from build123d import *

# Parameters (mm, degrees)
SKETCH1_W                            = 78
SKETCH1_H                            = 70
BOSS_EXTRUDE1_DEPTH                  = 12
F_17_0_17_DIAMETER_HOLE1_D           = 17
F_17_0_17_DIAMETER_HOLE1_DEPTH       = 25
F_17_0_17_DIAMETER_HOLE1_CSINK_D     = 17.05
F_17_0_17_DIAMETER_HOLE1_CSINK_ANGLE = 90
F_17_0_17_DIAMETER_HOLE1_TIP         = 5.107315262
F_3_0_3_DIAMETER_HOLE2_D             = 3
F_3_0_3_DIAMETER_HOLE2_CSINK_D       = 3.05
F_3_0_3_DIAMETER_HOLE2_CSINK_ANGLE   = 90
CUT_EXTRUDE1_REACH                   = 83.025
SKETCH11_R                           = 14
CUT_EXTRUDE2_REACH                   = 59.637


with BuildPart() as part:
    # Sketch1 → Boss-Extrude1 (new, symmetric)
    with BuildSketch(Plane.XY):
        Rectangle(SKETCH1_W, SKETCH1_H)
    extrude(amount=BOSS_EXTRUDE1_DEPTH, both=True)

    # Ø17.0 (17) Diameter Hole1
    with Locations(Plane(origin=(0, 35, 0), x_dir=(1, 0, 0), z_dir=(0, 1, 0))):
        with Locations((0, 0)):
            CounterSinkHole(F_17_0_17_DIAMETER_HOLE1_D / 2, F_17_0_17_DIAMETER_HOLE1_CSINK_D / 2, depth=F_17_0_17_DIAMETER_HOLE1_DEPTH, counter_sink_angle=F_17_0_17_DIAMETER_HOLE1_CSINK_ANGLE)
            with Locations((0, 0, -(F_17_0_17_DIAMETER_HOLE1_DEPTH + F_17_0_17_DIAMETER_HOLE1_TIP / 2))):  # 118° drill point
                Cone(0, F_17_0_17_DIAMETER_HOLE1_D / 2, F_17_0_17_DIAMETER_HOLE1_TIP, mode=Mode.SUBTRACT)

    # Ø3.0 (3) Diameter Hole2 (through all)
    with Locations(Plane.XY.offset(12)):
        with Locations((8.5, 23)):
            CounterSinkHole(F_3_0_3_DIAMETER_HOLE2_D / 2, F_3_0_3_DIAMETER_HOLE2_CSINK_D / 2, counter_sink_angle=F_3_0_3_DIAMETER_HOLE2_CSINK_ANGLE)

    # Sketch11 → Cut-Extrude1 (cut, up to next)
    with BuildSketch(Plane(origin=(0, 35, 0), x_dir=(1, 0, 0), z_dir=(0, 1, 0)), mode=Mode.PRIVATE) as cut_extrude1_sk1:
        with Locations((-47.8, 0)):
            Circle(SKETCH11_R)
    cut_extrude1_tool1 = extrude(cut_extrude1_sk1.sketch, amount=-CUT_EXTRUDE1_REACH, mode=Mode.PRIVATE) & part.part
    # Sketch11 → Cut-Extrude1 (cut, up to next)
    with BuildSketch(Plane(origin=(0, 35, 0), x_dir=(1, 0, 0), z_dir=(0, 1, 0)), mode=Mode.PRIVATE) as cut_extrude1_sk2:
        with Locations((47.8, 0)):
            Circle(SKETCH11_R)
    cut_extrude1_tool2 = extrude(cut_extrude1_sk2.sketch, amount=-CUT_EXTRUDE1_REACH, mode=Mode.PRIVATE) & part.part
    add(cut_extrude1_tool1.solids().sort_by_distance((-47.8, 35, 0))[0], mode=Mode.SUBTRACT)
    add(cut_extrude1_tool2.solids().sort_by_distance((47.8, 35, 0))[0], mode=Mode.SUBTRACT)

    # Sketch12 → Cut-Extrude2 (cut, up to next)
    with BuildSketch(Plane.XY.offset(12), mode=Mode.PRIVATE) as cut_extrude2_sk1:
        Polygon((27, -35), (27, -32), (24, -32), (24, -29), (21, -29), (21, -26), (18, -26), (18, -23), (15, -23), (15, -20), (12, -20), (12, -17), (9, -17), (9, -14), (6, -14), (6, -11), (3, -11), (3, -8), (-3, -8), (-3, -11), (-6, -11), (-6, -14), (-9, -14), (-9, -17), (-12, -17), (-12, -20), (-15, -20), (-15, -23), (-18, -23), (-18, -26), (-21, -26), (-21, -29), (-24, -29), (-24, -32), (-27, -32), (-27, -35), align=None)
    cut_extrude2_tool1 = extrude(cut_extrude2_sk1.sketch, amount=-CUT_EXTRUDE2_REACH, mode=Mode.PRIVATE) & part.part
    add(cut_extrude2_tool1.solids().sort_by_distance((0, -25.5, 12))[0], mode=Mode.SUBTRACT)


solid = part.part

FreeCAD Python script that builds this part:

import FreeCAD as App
import Part
import Sketcher

V = App.Vector
Q = App.Units.Quantity


def add_polygon(sketch, points):
    """Adds a closed chain of lines whose ends are joined by coincident constraints."""
    first, n = sketch.GeometryCount, len(points)
    for a, b in zip(points, points[1:] + points[:1]):
        sketch.addGeometry(Part.LineSegment(App.Vector(*a, 0), App.Vector(*b, 0)), False)
    for i in range(n):
        sketch.addConstraint(Sketcher.Constraint("Coincident", first + i, 2, first + (i + 1) % n, 1))

doc = App.newDocument("Part")
body = doc.addObject("PartDesign::Body", "Body")

# Sketch on XY plane
sketch1 = body.newObject("Sketcher::SketchObject", "Sketch")
sketch1.AttachmentSupport = (doc.getObject("XY_Plane"), [""])
sketch1.MapMode = "FlatFace"
add_polygon(sketch1, [(-39, 35), (-39, -35), (39, -35), (39, 35)])  # lines 0-3
sketch1.addConstraint([
    Sketcher.Constraint("Vertical", 0),
    Sketcher.Constraint("Horizontal", 1),
    Sketcher.Constraint("Vertical", 2),
    Sketcher.Constraint("Horizontal", 3),
    Sketcher.Constraint("Symmetric", 0, 2, 2, 2, -1, 1),
    Sketcher.Constraint("DistanceX", 1, 1, 1, 2, Q("78 mm")),
    Sketcher.Constraint("DistanceY", 0, 2, 0, 1, Q("70 mm")),
])
pad1 = body.newObject("PartDesign::Pad", "Pad")
pad1.Profile = sketch1
pad1.Length = 24
pad1.Midplane = True

# Sketch on XZ plane
sketch2 = body.newObject("Sketcher::SketchObject", "Sketch001")
sketch2.AttachmentSupport = (doc.getObject("XZ_Plane"), [""])
sketch2.MapMode = "FlatFace"
sketch2.AttachmentOffset = App.Placement(V(0, 0, -35), App.Rotation())
sketch2.addGeometry(Part.Circle(V(0, 0, 0), V(0, 0, 1), 8.5), False)
sketch2.addConstraint([
    Sketcher.Constraint("Coincident", 0, 3, -1, 1),
    Sketcher.Constraint("Diameter", 0, Q("17 mm")),
])
doc.recompute()
hole = body.newObject("PartDesign::Hole", "Hole")
hole.Profile = sketch2
hole.ThreadType = "None"
hole.Diameter = 17
hole.DepthType = "Dimension"
hole.Depth = 25
hole.DrillPoint = "Angled"
hole.DrillPointAngle = 118
hole.HoleCutType = "Countersink"
hole.HoleCutDiameter = 17.05
hole.HoleCutCountersinkAngle = 90
hole.Reversed = True

# Sketch on XY plane
sketch3 = body.newObject("Sketcher::SketchObject", "Sketch002")
sketch3.AttachmentSupport = (doc.getObject("XY_Plane"), [""])
sketch3.MapMode = "FlatFace"
sketch3.AttachmentOffset = App.Placement(V(0, 0, 12), App.Rotation())
sketch3.addGeometry(Part.Circle(V(8.5, 23, 0), V(0, 0, 1), 1.5), False)
sketch3.addConstraint([
    Sketcher.Constraint("Diameter", 0, Q("3 mm")),
    Sketcher.Constraint("DistanceY", -1, 1, 0, 3, Q("23 mm")),
    Sketcher.Constraint("DistanceX", -1, 1, 0, 3, Q("8.5 mm")),
])
doc.recompute()
hole2 = body.newObject("PartDesign::Hole", "Hole001")
hole2.Profile = sketch3
hole2.ThreadType = "None"
hole2.Diameter = 3
hole2.DepthType = "ThroughAll"
hole2.HoleCutType = "Countersink"
hole2.HoleCutDiameter = 3.05
hole2.HoleCutCountersinkAngle = 90

# Sketch on XZ plane
sketch4 = body.newObject("Sketcher::SketchObject", "Sketch003")
sketch4.AttachmentSupport = (doc.getObject("XZ_Plane"), [""])
sketch4.MapMode = "FlatFace"
sketch4.AttachmentOffset = App.Placement(V(0, 0, -35), App.Rotation())
sketch4.addGeometry(Part.Circle(V(-47.8, 0, 0), V(0, 0, 1), 14), False)
sketch4.addConstraint([
    Sketcher.Constraint("PointOnObject", 0, 3, -1),
    Sketcher.Constraint("Diameter", 0, Q("28 mm")),
    Sketcher.Constraint("DistanceX", 0, 3, -1, 1, Q("47.8 mm")),
])
pocket1 = body.newObject("PartDesign::Pocket", "Pocket")
pocket1.Profile = sketch4
pocket1.Length = 70
pocket1.Reversed = True

# Sketch on XZ plane
sketch5 = body.newObject("Sketcher::SketchObject", "Sketch004")
sketch5.AttachmentSupport = (doc.getObject("XZ_Plane"), [""])
sketch5.MapMode = "FlatFace"
sketch5.AttachmentOffset = App.Placement(V(0, 0, -35), App.Rotation())
sketch5.addGeometry(Part.Circle(V(47.8, 0, 0), V(0, 0, 1), 14), False)
sketch5.addConstraint([
    Sketcher.Constraint("PointOnObject", 0, 3, -1),
    Sketcher.Constraint("Diameter", 0, Q("28 mm")),
    Sketcher.Constraint("DistanceX", -1, 1, 0, 3, Q("47.8 mm")),
])
pocket2 = body.newObject("PartDesign::Pocket", "Pocket001")
pocket2.Profile = sketch5
pocket2.Length = 70
pocket2.Reversed = True

# Sketch on XY plane
sketch6 = body.newObject("Sketcher::SketchObject", "Sketch005")
sketch6.AttachmentSupport = (doc.getObject("XY_Plane"), [""])
sketch6.MapMode = "FlatFace"
sketch6.AttachmentOffset = App.Placement(V(0, 0, 12), App.Rotation())
add_polygon(sketch6, [(27, -35), (27, -32), (24, -32), (24, -29), (21, -29), (21, -26), (18, -26), (18, -23), (15, -23), (15, -20), (12, -20), (12, -17), (9, -17), (9, -14), (6, -14), (6, -11), (3, -11), (3, -8), (-3, -8), (-3, -11), (-6, -11), (-6, -14), (-9, -14), (-9, -17), (-12, -17), (-12, -20), (-15, -20), (-15, -23), (-18, -23), (-18, -26), (-21, -26), (-21, -29), (-24, -29), (-24, -32), (-27, -32), (-27, -35)])  # lines 0-35
sketch6.addConstraint([
    Sketcher.Constraint("Vertical", 0),
    Sketcher.Constraint("Horizontal", 1),
    Sketcher.Constraint("Vertical", 2),
    Sketcher.Constraint("Horizontal", 3),
    Sketcher.Constraint("Vertical", 4),
    Sketcher.Constraint("Horizontal", 5),
    Sketcher.Constraint("Vertical", 6),
    Sketcher.Constraint("Horizontal", 7),
    Sketcher.Constraint("Vertical", 8),
    Sketcher.Constraint("Horizontal", 9),
    Sketcher.Constraint("Vertical", 10),
    Sketcher.Constraint("Horizontal", 11),
    Sketcher.Constraint("Vertical", 12),
    Sketcher.Constraint("Horizontal", 13),
    Sketcher.Constraint("Vertical", 14),
    Sketcher.Constraint("Horizontal", 15),
    Sketcher.Constraint("Vertical", 16),
    Sketcher.Constraint("Horizontal", 17),
    Sketcher.Constraint("Vertical", 18),
    Sketcher.Constraint("Horizontal", 19),
    Sketcher.Constraint("Vertical", 20),
    Sketcher.Constraint("Horizontal", 21),
    Sketcher.Constraint("Vertical", 22),
    Sketcher.Constraint("Horizontal", 23),
    Sketcher.Constraint("Vertical", 24),
    Sketcher.Constraint("Horizontal", 25),
    Sketcher.Constraint("Vertical", 26),
    Sketcher.Constraint("Horizontal", 27),
    Sketcher.Constraint("Vertical", 28),
    Sketcher.Constraint("Horizontal", 29),
    Sketcher.Constraint("Vertical", 30),
    Sketcher.Constraint("Horizontal", 31),
    Sketcher.Constraint("Vertical", 32),
    Sketcher.Constraint("Horizontal", 33),
    Sketcher.Constraint("Vertical", 34),
    Sketcher.Constraint("Horizontal", 35),
    Sketcher.Constraint("Symmetric", 15, 2, 18, 2, -2),
    Sketcher.Constraint("Symmetric", 13, 2, 20, 2, -2),
    Sketcher.Constraint("Symmetric", 11, 2, 22, 2, -2),
    Sketcher.Constraint("Symmetric", 9, 2, 24, 2, -2),
    Sketcher.Constraint("Symmetric", 7, 2, 26, 2, -2),
    Sketcher.Constraint("Symmetric", 5, 2, 28, 2, -2),
    Sketcher.Constraint("Symmetric", 3, 2, 30, 2, -2),
    Sketcher.Constraint("Symmetric", 1, 2, 32, 2, -2),
    Sketcher.Constraint("Equal", 1, 3),
    Sketcher.Constraint("Equal", 3, 5),
    Sketcher.Constraint("Equal", 5, 7),
    Sketcher.Constraint("Equal", 7, 9),
    Sketcher.Constraint("Equal", 9, 11),
    Sketcher.Constraint("Equal", 11, 13),
    Sketcher.Constraint("Equal", 13, 15),
    Sketcher.Constraint("Equal", 31, 33),
    Sketcher.Constraint("Equal", 33, 0),
    Sketcher.Constraint("Equal", 0, 2),
    Sketcher.Constraint("Equal", 2, 4),
    Sketcher.Constraint("Equal", 4, 6),
    Sketcher.Constraint("Equal", 6, 8),
    Sketcher.Constraint("Equal", 8, 10),
    Sketcher.Constraint("Equal", 10, 12),
    Sketcher.Constraint("Equal", 12, 14),
    Sketcher.Constraint("Equal", 14, 16),
    Sketcher.Constraint("DistanceX", 1, 2, 1, 1, Q("3 mm")),
    Sketcher.Constraint("DistanceX", 17, 2, 17, 1, Q("6 mm")),
    Sketcher.Constraint("DistanceY", 0, 2, -1, 1, Q("32 mm")),
])
pocket3 = body.newObject("PartDesign::Pocket", "Pocket002")
pocket3.Profile = sketch6
pocket3.Type = "UpToFirst"

doc.recompute()
